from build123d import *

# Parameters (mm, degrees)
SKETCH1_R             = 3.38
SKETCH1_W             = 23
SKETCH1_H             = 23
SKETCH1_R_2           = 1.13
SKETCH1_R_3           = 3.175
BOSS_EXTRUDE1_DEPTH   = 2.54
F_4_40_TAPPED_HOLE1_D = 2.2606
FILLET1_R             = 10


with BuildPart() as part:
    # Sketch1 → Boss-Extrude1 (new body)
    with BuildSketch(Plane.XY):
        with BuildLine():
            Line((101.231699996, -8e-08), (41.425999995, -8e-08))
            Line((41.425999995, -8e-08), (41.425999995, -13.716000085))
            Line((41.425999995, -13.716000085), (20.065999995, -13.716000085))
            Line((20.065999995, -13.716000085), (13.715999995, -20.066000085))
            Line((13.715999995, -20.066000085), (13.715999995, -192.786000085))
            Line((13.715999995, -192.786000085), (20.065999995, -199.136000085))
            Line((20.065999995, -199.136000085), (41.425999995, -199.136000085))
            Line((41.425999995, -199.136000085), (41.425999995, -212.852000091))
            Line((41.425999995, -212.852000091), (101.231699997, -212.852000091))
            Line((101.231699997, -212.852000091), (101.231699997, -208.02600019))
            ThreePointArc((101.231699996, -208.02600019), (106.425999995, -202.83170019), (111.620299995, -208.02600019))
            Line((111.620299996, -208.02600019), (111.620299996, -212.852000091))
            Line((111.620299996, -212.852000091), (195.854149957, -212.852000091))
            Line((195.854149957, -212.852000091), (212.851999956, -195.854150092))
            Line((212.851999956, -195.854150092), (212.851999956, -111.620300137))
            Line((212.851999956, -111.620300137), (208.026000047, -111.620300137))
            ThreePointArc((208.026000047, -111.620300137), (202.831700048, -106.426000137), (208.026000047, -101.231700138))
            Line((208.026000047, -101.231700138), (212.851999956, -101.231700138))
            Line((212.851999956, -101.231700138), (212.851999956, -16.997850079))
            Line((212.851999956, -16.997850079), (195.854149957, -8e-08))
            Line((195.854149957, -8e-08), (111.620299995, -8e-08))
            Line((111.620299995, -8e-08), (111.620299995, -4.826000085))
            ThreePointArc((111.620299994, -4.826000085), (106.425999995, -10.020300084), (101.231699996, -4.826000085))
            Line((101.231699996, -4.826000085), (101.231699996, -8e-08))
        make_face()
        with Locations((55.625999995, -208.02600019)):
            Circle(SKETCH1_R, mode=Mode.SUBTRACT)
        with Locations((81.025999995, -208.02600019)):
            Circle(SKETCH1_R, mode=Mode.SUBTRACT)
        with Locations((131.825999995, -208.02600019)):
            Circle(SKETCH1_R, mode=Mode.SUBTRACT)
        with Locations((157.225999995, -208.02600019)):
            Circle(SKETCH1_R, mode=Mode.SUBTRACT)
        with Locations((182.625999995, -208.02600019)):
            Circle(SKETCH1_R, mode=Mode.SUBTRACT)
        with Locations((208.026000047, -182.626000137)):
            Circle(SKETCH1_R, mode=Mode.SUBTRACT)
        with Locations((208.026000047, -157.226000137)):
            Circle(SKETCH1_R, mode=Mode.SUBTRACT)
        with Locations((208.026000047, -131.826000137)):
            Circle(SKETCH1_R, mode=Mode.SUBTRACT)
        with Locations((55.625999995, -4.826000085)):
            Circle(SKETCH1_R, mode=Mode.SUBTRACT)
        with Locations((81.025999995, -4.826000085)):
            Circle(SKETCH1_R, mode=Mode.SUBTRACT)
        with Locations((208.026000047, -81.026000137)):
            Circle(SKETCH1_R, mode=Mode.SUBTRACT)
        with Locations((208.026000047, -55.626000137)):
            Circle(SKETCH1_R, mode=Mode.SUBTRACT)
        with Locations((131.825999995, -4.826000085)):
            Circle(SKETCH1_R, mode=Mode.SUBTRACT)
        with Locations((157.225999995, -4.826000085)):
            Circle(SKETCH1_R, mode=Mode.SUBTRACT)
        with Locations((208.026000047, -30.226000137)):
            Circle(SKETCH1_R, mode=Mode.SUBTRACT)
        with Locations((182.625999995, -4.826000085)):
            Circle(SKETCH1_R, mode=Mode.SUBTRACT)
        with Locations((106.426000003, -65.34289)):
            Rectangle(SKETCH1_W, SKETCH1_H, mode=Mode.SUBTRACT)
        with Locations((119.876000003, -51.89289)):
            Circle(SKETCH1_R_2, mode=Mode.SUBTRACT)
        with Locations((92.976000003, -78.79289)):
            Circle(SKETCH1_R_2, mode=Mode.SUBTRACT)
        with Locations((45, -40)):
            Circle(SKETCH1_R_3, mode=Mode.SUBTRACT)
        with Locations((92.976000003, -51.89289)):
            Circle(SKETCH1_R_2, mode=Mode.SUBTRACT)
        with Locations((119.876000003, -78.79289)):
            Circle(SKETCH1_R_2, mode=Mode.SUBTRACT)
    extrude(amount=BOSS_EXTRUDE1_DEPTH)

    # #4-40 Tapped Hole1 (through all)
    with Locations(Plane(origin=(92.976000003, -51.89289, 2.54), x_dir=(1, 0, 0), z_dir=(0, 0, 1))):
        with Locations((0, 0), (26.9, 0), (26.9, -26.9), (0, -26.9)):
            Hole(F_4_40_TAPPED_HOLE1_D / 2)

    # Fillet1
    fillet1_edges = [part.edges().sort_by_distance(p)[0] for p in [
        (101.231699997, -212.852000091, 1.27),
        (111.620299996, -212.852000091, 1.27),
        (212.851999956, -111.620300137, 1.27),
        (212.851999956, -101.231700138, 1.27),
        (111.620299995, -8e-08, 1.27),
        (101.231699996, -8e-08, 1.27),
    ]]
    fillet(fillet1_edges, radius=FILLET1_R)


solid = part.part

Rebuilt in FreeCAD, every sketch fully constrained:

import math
import FreeCAD as App
import Part
import Sketcher
from FreeCAD import Vector
Q = App.Units.Quantity


def edges_at(feature, points):
    """Names of the edges that pass closest to the given points."""
    edges = feature.Shape.Edges
    near = lambda p: min(range(len(edges)), key=lambda i: edges[i].distToShape(Part.Vertex(*p))[0])
    return sorted({f"Edge{near(p) + 1}" for p in points})


def add_polygon(sketch, points):
    """Adds a closed chain of lines whose ends are joined by coincident constraints."""
    first, n = sketch.GeometryCount, len(points)
    for a, b in zip(points, points[1:] + points[:1]):
        sketch.addGeometry(Part.LineSegment(App.Vector(*a, 0), App.Vector(*b, 0)), False)
    for i in range(n):
        sketch.addConstraint(Sketcher.Constraint("Coincident", first + i, 2, first + (i + 1) % n, 1))

doc = App.newDocument("Part")
body = doc.addObject("PartDesign::Body", "Body")

# Sketch on XY plane
sketch1 = body.newObject("Sketcher::SketchObject", "Sketch")
sketch1.AttachmentSupport = (doc.getObject("XY_Plane"), [""])
sketch1.MapMode = "FlatFace"
sketch1.addGeometry(Part.LineSegment(Vector(101.2317, 0, 0), Vector(41.426, 0, 0)), False)  # 0
sketch1.addGeometry(Part.LineSegment(Vector(41.426, 0, 0), Vector(41.426, -13.716, 0)), False)  # 1
sketch1.addGeometry(Part.LineSegment(Vector(41.426, -13.716, 0), Vector(20.066, -13.716, 0)), False)  # 2
sketch1.addGeometry(Part.LineSegment(Vector(20.066, -13.716, 0), Vector(13.716, -20.066, 0)), False)  # 3
sketch1.addGeometry(Part.LineSegment(Vector(13.716, -20.066, 0), Vector(13.716, -192.786, 0)), False)  # 4
sketch1.addGeometry(Part.LineSegment(Vector(13.716, -192.786, 0), Vector(20.066, -199.136, 0)), False)  # 5
sketch1.addGeometry(Part.LineSegment(Vector(20.066, -199.136, 0), Vector(41.426, -199.136, 0)), False)  # 6
sketch1.addGeometry(Part.LineSegment(Vector(41.426, -199.136, 0), Vector(41.426, -212.852, 0)), False)  # 7
sketch1.addGeometry(Part.LineSegment(Vector(41.426, -212.852, 0), Vector(101.2317, -212.852, 0)), False)  # 8
sketch1.addGeometry(Part.LineSegment(Vector(101.2317, -212.852, 0), Vector(101.2317, -208.026, 0)), False)  # 9
sketch1.addGeometry(Part.ArcOfCircle(Part.Circle(Vector(106.426, -208.026, 0), Vector(0, 0, 1), 5.1943), math.radians(0), math.radians(180)), False)  # 10
sketch1.addGeometry(Part.LineSegment(Vector(111.6203, -208.026, 0), Vector(111.6203, -212.852, 0)), False)  # 11
sketch1.addGeometry(Part.LineSegment(Vector(111.6203, -212.852, 0), Vector(195.85415, -212.852, 0)), False)  # 12
sketch1.addGeometry(Part.LineSegment(Vector(195.85415, -212.852, 0), Vector(212.852, -195.85415, 0)), False)  # 13
sketch1.addGeometry(Part.LineSegment(Vector(212.852, -195.85415, 0), Vector(212.852, -111.6203, 0)), False)  # 14
sketch1.addGeometry(Part.LineSegment(Vector(212.852, -111.6203, 0), Vector(208.026, -111.6203, 0)), False)  # 15
sketch1.addGeometry(Part.ArcOfCircle(Part.Circle(Vector(208.026, -106.426, 0), Vector(0, 0, 1), 5.1943), math.radians(90), math.radians(270)), False)  # 16
sketch1.addGeometry(Part.LineSegment(Vector(208.026, -101.2317, 0), Vector(212.852, -101.2317, 0)), False)  # 17
sketch1.addGeometry(Part.LineSegment(Vector(212.852, -101.2317, 0), Vector(212.852, -16.99785, 0)), False)  # 18
sketch1.addGeometry(Part.LineSegment(Vector(212.852, -16.99785, 0), Vector(195.85415, 0, 0)), False)  # 19
sketch1.addGeometry(Part.LineSegment(Vector(195.85415, 0, 0), Vector(111.6203, 0, 0)), False)  # 20
sketch1.addGeometry(Part.LineSegment(Vector(111.6203, 0, 0), Vector(111.6203, -4.826, 0)), False)  # 21
sketch1.addGeometry(Part.ArcOfCircle(Part.Circle(Vector(106.426, -4.826, 0), Vector(0, 0, 1), 5.1943), math.radians(180), math.radians(360)), False)  # 22
sketch1.addGeometry(Part.LineSegment(Vector(101.2317, -4.826, 0), Vector(101.2317, 0, 0)), False)  # 23
sketch1.addGeometry(Part.Circle(Vector(55.626, -208.026, 0), Vector(0, 0, 1), 3.38), False)  # 24
sketch1.addGeometry(Part.Circle(Vector(81.026, -208.026, 0), Vector(0, 0, 1), 3.38), False)  # 25
sketch1.addGeometry(Part.Circle(Vector(131.826, -208.026, 0), Vector(0, 0, 1), 3.38), False)  # 26
sketch1.addGeometry(Part.Circle(Vector(157.226, -208.026, 0), Vector(0, 0, 1), 3.38), False)  # 27
sketch1.addGeometry(Part.Circle(Vector(182.626, -208.026, 0), Vector(0, 0, 1), 3.38), False)  # 28
sketch1.addGeometry(Part.Circle(Vector(208.026, -182.626, 0), Vector(0, 0, 1), 3.38), False)  # 29
sketch1.addGeometry(Part.Circle(Vector(208.026, -157.226, 0), Vector(0, 0, 1), 3.38), False)  # 30
sketch1.addGeometry(Part.Circle(Vector(208.026, -131.826, 0), Vector(0, 0, 1), 3.38), False)  # 31
sketch1.addGeometry(Part.Circle(Vector(92.976, -78.79289, 0), Vector(0, 0, 1), 1.13), False)  # 32
sketch1.addGeometry(Part.Circle(Vector(119.876, -78.79289, 0), Vector(0, 0, 1), 1.13), False)  # 33
add_polygon(sketch1, [(117.926, -76.84289), (94.926, -76.84289), (94.926, -53.84289), (117.926, -53.84289)])  # lines 34-37
sketch1.addGeometry(Part.Circle(Vector(45, -40, 0), Vector(0, 0, 1), 3.175), False)  # 38
sketch1.addGeometry(Part.Circle(Vector(55.626, -4.826, 0), Vector(0, 0, 1), 3.38), False)  # 39
sketch1.addGeometry(Part.Circle(Vector(81.026, -4.826, 0), Vector(0, 0, 1), 3.38), False)  # 40
sketch1.addGeometry(Part.Circle(Vector(92.976, -51.89289, 0), Vector(0, 0, 1), 1.13), False)  # 41
sketch1.addGeometry(Part.Circle(Vector(119.876, -51.89289, 0), Vector(0, 0, 1), 1.13), False)  # 42
sketch1.addGeometry(Part.Circle(Vector(208.026, -81.026, 0), Vector(0, 0, 1), 3.38), False)  # 43
sketch1.addGeometry(Part.Circle(Vector(208.026, -55.626, 0), Vector(0, 0, 1), 3.38), False)  # 44
sketch1.addGeometry(Part.Circle(Vector(131.826, -4.826, 0), Vector(0, 0, 1), 3.38), False)  # 45
sketch1.addGeometry(Part.Circle(Vector(157.226, -4.826, 0), Vector(0, 0, 1), 3.38), False)  # 46
sketch1.addGeometry(Part.Circle(Vector(208.026, -30.226, 0), Vector(0, 0, 1), 3.38), False)  # 47
sketch1.addGeometry(Part.Circle(Vector(182.626, -4.826, 0), Vector(0, 0, 1), 3.38), False)  # 48
sketch1.addConstraint([
    Sketcher.Constraint("Coincident", 0, 2, 1, 1),
    Sketcher.Constraint("Coincident", 1, 2, 2, 1),
    Sketcher.Constraint("Coincident", 2, 2, 3, 1),
    Sketcher.Constraint("Coincident", 3, 2, 4, 1),
    Sketcher.Constraint("Coincident", 4, 2, 5, 1),
    Sketcher.Constraint("Coincident", 5, 2, 6, 1),
    Sketcher.Constraint("Coincident", 6, 2, 7, 1),
    Sketcher.Constraint("Coincident", 7, 2, 8, 1),
    Sketcher.Constraint("Coincident", 8, 2, 9, 1),
    Sketcher.Constraint("Tangent", 9, 2, 10, 2),
    Sketcher.Constraint("Tangent", 10, 1, 11, 1),
    Sketcher.Constraint("Coincident", 11, 2, 12, 1),
    Sketcher.Constraint("Coincident", 12, 2, 13, 1),
    Sketcher.Constraint("Coincident", 13, 2, 14, 1),
    Sketcher.Constraint("Coincident", 14, 2, 15, 1),
    Sketcher.Constraint("Tangent", 15, 2, 16, 2),
    Sketcher.Constraint("Tangent", 16, 1, 17, 1),
    Sketcher.Constraint("Coincident", 17, 2, 18, 1),
    Sketcher.Constraint("Coincident", 18, 2, 19, 1),
    Sketcher.Constraint("Coincident", 19, 2, 20, 1),
    Sketcher.Constraint("Coincident", 20, 2, 21, 1),
    Sketcher.Constraint("Tangent", 21, 2, 22, 2),
    Sketcher.Constraint("Tangent", 22, 1, 23, 1),
    Sketcher.Constraint("Coincident", 23, 2, 0, 1),
    Sketcher.Constraint("Horizontal", 0),
    Sketcher.Constraint("Vertical", 1),
    Sketcher.Constraint("Horizontal", 2),
    Sketcher.Constraint("Vertical", 4),
    Sketcher.Constraint("Horizontal", 6),
    Sketcher.Constraint("Vertical", 7),
    Sketcher.Constraint("Horizontal", 8),
    Sketcher.Constraint("Vertical", 9),
    Sketcher.Constraint("Vertical", 11),
    Sketcher.Constraint("Horizontal", 12),
    Sketcher.Constraint("Vertical", 14),
    Sketcher.Constraint("Horizontal", 15),
    Sketcher.Constraint("Horizontal", 17),
    Sketcher.Constraint("Vertical", 18),
    Sketcher.Constraint("Horizontal", 20),
    Sketcher.Constraint("Vertical", 21),
    Sketcher.Constraint("Vertical", 23),
    Sketcher.Constraint("Horizontal", 34),
    Sketcher.Constraint("Vertical", 35),
    Sketcher.Constraint("Horizontal", 36),
    Sketcher.Constraint("Vertical", 37),
    Sketcher.Constraint("Equal", 10, 16),
    Sketcher.Constraint("Equal", 16, 22),
    Sketcher.Constraint("Equal", 24, 25),
    Sketcher.Constraint("Equal", 25, 26),
    Sketcher.Constraint("Equal", 26, 27),
    Sketcher.Constraint("Equal", 27, 28),
    Sketcher.Constraint("Equal", 28, 29),
    Sketcher.Constraint("Equal", 29, 30),
    Sketcher.Constraint("Equal", 30, 31),
    Sketcher.Constraint("Equal", 32, 33),
    Sketcher.Constraint("Equal", 31, 39),
    Sketcher.Constraint("Equal", 39, 40),
    Sketcher.Constraint("Equal", 33, 41),
    Sketcher.Constraint("Equal", 41, 42),
    Sketcher.Constraint("Equal", 40, 43),
    Sketcher.Constraint("Equal", 43, 44),
    Sketcher.Constraint("Equal", 44, 45),
    Sketcher.Constraint("Equal", 45, 46),
    Sketcher.Constraint("Equal", 46, 47),
    Sketcher.Constraint("Equal", 47, 48),
    Sketcher.Constraint("PointOnObject", 0, 2, -1),
    Sketcher.Constraint("PointOnObject", 19, 2, -1),
    Sketcher.Constraint("Perpendicular", 3, 5),
    Sketcher.Constraint("Perpendicular", 5, 13),
    Sketcher.Constraint("Perpendicular", 13, 19),
    Sketcher.Constraint("Horizontal", 10, 3, 24, 3),
    Sketcher.Constraint("Horizontal", 24, 3, 25, 3),
    Sketcher.Constraint("Horizontal", 25, 3, 26, 3),
    Sketcher.Constraint("Horizontal", 26, 3, 27, 3),
    Sketcher.Constraint("Horizontal", 27, 3, 28, 3),
    Sketcher.Constraint("Horizontal", 32, 3, 33, 3),
    Sketcher.Constraint("Horizontal", 22, 3, 39, 3),
    Sketcher.Constraint("Horizontal", 39, 3, 40, 3),
    Sketcher.Constraint("Horizontal", 41, 3, 42, 3),
    Sketcher.Constraint("Horizontal", 40, 3, 45, 3),
    Sketcher.Constraint("Horizontal", 45, 3, 46, 3),
    Sketcher.Constraint("Horizontal", 46, 3, 48, 3),
    Sketcher.Constraint("Horizontal", 8, 2, 11, 2),
    Sketcher.Constraint("Vertical", 10, 3, 22, 3),
    Sketcher.Constraint("Vertical", 16, 3, 29, 3),
    Sketcher.Constraint("Vertical", 29, 3, 30, 3),
    Sketcher.Constraint("Vertical", 30, 3, 31, 3),
    Sketcher.Constraint("Vertical", 24, 3, 39, 3),
    Sketcher.Constraint("Vertical", 25, 3, 40, 3),
    Sketcher.Constraint("Vertical", 32, 3, 41, 3),
    Sketcher.Constraint("Vertical", 33, 3, 42, 3),
    Sketcher.Constraint("Vertical", 31, 3, 43, 3),
    Sketcher.Constraint("Vertical", 43, 3, 44, 3),
    Sketcher.Constraint("Vertical", 26, 3, 45, 3),
    Sketcher.Constraint("Vertical", 27, 3, 46, 3),
    Sketcher.Constraint("Vertical", 44, 3, 47, 3),
    Sketcher.Constraint("Vertical", 28, 3, 48, 3),
    Sketcher.Constraint("Vertical", 2, 2, 5, 2),
    Sketcher.Constraint("Vertical", 1, 2, 6, 2),
    Sketcher.Constraint("Vertical", 14, 2, 17, 2),
    Sketcher.Constraint("Vertical", 12, 2, 19, 2),
    Sketcher.Constraint("Equal", 1, 7),
    Sketcher.Constraint("Equal", 17, 9),
    Sketcher.Constraint("Equal", 20, 14),
    Sketcher.Constraint("Equal", 14, 18),
    Sketcher.Constraint("Equal", 11, 21),
    Sketcher.Constraint("Equal", 36, 35),
    Sketcher.Constraint("Equal", 3, 5),
    Sketcher.Constraint("Diameter", 38, Q("0.25 in")),
    Sketcher.Constraint("DistanceY", 4, 2, 4, 1, Q("6.8 in")),
    Sketcher.Constraint("DistanceX", 10, 3, 16, 3, Q("4 in")),
    Sketcher.Constraint("DistanceX", 24, 3, 10, 3, Q("2 in")),
    Sketcher.Constraint("DistanceX", 24, 3, 25, 3, Q("1 in")),
    Sketcher.Constraint("DistanceX", 10, 3, 26, 3, Q("1 in")),
    Sketcher.Constraint("DistanceX", 26, 3, 27, 3, Q("1 in")),
    Sketcher.Constraint("DistanceX", 27, 3, 28, 3, Q("1 in")),
    Sketcher.Constraint("DistanceY", 28, 3, 29, 3, Q("1 in")),
    Sketcher.Constraint("DistanceY", 29, 3, 30, 3, Q("1 in")),
    Sketcher.Constraint("DistanceY", 31, 3, 16, 3, Q("1 in")),
    Sketcher.Constraint("DistanceY", 16, 3, 43, 3, Q("1 in")),
    Sketcher.Constraint("DistanceY", 43, 3, 44, 3, Q("1 in")),
    Sketcher.Constraint("DistanceY", 44, 3, 47, 3, Q("1 in")),
    Sketcher.Constraint("DistanceX", 15, 2, 15, 1, Q("0.19 in")),
    Sketcher.Constraint("DistanceY", 1, 2, 1, 1, Q("0.54 in")),
    Sketcher.Constraint("Radius", 10, Q("0.2045 in")),
    Sketcher.Constraint("DistanceX", 2, 2, 39, 3, Q("1.4 in")),
    Sketcher.Constraint("Diameter", 24, Q("6.76 mm")),
    Sketcher.Constraint("Diameter", 32, Q("2.26 mm")),
    Sketcher.Constraint("DistanceX", -1, 1, 10, 3, Q("4.19 in")),
    Sketcher.Constraint("DistanceX", 0, 2, 0, 1, Q("59.8057 mm")),
    Sketcher.Constraint("DistanceX", 34, 2, 34, 1, Q("23 mm")),
    Sketcher.Constraint("DistanceX", 12, 1, 12, 2, Q("84.23385 mm")),
    Sketcher.Constraint("DistanceX", -1, 1, 32, 3, Q("92.976 mm")),
    Sketcher.Constraint("DistanceX", -1, 1, 33, 3, Q("119.876 mm")),
    Sketcher.Constraint("DistanceX", -1, 1, 38, 3, Q("45 mm")),
    Sketcher.Constraint("DistanceY", 38, 3, -1, 1, Q("40 mm")),
    Sketcher.Constraint("DistanceX", -1, 1, 34, 2, Q("94.926 mm")),
    Sketcher.Constraint("DistanceY", 32, 3, 41, 3, Q("26.9 mm")),
    Sketcher.Constraint("DistanceY", 32, 3, 34, 2, Q("1.95 mm")),
    Sketcher.Constraint("DistanceY", 32, 3, -1, 1, Q("78.79289 mm")),
])
pad1 = body.newObject("PartDesign::Pad", "Pad")
pad1.Profile = sketch1
pad1.Length = Q("0.1 in")

# Sketch on XY plane
sketch2 = body.newObject("Sketcher::SketchObject", "Sketch001")
sketch2.AttachmentSupport = (doc.getObject("XY_Plane"), [""])
sketch2.MapMode = "FlatFace"
sketch2.AttachmentOffset = App.Placement(Vector(0, 0, 0.1 * 25.4), App.Rotation())
sketch2.addGeometry([
    Part.Circle(Vector(92.976, -51.89289, 0), Vector(0, 0, 1), 1.1303),
    Part.Circle(Vector(119.876, -51.89289, 0), Vector(0, 0, 1), 1.1303),
    Part.Circle(Vector(119.876, -78.79289, 0), Vector(0, 0, 1), 1.1303),
    Part.Circle(Vector(92.976, -78.79289, 0), Vector(0, 0, 1), 1.1303),
], False)
sketch2.addConstraint([
    Sketcher.Constraint("Equal", 0, 1),
    Sketcher.Constraint("Equal", 1, 2),
    Sketcher.Constraint("Equal", 2, 3),
    Sketcher.Constraint("Horizontal", 0, 3, 1, 3),
    Sketcher.Constraint("Horizontal", 2, 3, 3, 3),
    Sketcher.Constraint("Vertical", 1, 3, 2, 3),
    Sketcher.Constraint("Vertical", 0, 3, 3, 3),
    Sketcher.Constraint("Diameter", 0, Q("0.089 in")),
    Sketcher.Constraint("DistanceX", -1, 1, 0, 3, Q("92.976 mm")),
    Sketcher.Constraint("DistanceX", -1, 1, 1, 3, Q("119.876 mm")),
    Sketcher.Constraint("DistanceY", 2, 3, 1, 3, Q("26.9 mm")),
    Sketcher.Constraint("DistanceY", 0, 3, -1, 1, Q("51.89289 mm")),
])
doc.recompute()
hole = body.newObject("PartDesign::Hole", "Hole")
hole.Profile = sketch2
hole.ThreadType = "None"
hole.Diameter = Q("0.089 in")
hole.DepthType = "ThroughAll"
doc.recompute()

fillet = body.newObject("PartDesign::Fillet", "Fillet")
fillet.Base = (hole, edges_at(hole, [
    (101.232, -212.852, 1.27),
    (111.62, -212.852, 1.27),
    (212.852, -111.62, 1.27),
    (212.852, -101.232, 1.27),
    (111.62, 0, 1.27),
    (101.232, 0, 1.27),
]))
fillet.Radius = 10

doc.recompute()
